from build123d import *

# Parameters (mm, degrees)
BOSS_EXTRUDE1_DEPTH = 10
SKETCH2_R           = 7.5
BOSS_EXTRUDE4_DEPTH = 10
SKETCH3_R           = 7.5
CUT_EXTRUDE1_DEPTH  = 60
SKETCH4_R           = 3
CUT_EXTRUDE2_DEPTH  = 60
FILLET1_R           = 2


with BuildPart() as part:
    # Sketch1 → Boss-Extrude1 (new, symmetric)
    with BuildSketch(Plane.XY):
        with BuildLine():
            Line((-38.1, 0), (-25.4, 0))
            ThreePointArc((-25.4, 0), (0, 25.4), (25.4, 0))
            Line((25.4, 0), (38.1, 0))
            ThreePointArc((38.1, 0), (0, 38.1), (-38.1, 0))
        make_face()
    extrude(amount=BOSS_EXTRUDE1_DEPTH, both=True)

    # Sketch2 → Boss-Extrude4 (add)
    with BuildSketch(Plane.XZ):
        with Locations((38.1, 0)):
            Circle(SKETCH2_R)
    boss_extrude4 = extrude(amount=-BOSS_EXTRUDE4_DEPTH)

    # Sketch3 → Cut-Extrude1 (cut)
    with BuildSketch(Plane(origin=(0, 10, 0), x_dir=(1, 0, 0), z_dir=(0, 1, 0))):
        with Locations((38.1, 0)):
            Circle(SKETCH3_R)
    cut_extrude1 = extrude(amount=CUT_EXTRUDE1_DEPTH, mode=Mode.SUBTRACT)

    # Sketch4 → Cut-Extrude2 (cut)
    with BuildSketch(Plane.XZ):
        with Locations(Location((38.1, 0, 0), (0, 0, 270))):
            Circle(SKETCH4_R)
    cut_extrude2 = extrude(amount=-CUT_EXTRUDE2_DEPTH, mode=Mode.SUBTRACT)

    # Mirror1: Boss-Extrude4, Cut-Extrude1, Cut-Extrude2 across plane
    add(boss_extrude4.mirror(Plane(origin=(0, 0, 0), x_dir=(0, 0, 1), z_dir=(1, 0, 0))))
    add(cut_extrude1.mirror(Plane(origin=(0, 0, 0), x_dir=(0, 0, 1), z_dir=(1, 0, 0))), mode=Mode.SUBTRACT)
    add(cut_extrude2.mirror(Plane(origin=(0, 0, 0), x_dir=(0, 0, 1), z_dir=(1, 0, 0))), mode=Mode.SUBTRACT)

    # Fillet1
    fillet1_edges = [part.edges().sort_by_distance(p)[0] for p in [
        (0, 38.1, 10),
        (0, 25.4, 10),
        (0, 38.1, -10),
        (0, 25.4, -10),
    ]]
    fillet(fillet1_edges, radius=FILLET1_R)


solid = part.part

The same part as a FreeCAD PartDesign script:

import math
import FreeCAD as App
import Part
import Sketcher


def edges_at(feature, points):
    """Names of the edges that pass closest to the given points."""
    edges = feature.Shape.Edges
    near = lambda p: min(range(len(edges)), key=lambda i: edges[i].distToShape(Part.Vertex(*p))[0])
    return sorted({f"Edge{near(p) + 1}" for p in points})

doc = App.newDocument("Part")
body = doc.addObject("PartDesign::Body", "Body")

# Sketch on XY plane
sketch1 = body.newObject("Sketcher::SketchObject", "Sketch")
sketch1.AttachmentSupport = (doc.getObject("XY_Plane"), [""])
sketch1.MapMode = "FlatFace"
sketch1.addGeometry([
    Part.LineSegment(App.Vector(-38, 0, 0), App.Vector(-25, 0, 0)),
    Part.ArcOfCircle(Part.Circle(App.Vector(0, 0, 0), App.Vector(0, 0, 1), 25), math.radians(0), math.radians(180)),
    Part.LineSegment(App.Vector(25, 0, 0), App.Vector(38, 0, 0)),
    Part.ArcOfCircle(Part.Circle(App.Vector(0, 0, 0), App.Vector(0, 0, 1), 38), math.radians(0), math.radians(180)),
], False)
sketch1.addConstraint([
    Sketcher.Constraint("Coincident", 0, 2, 1, 2),
    Sketcher.Constraint("Coincident", 1, 1, 2, 1),
    Sketcher.Constraint("Coincident", 2, 2, 3, 1),
    Sketcher.Constraint("Coincident", 3, 2, 0, 1),
    Sketcher.Constraint("Horizontal", 0),
    Sketcher.Constraint("Horizontal", 2),
    Sketcher.Constraint("Coincident", 1, 3, -1, 1),
    Sketcher.Constraint("Coincident", 3, 3, -1, 1),
    Sketcher.Constraint("PointOnObject", 0, 2, -1),
    Sketcher.Constraint("PointOnObject", 1, 1, -1),
    Sketcher.Constraint("Radius", 1, 25.4),
    Sketcher.Constraint("Radius", 3, 38.1),
])
pad1 = body.newObject("PartDesign::Pad", "Pad")
pad1.Profile = sketch1
pad1.Length = 20
pad1.Midplane = True

# Sketch on XZ plane
sketch2 = body.newObject("Sketcher::SketchObject", "Sketch001")
sketch2.AttachmentSupport = (doc.getObject("XZ_Plane"), [""])
sketch2.MapMode = "FlatFace"
sketch2.addGeometry(Part.Circle(App.Vector(38, 0, 0), App.Vector(0, 0, 1), 8), False)
sketch2.addConstraint([
    Sketcher.Constraint("PointOnObject", 0, 3, -1),
    Sketcher.Constraint("Diameter", 0, 15.0),
    Sketcher.Constraint("DistanceX", -1, 1, 0, 3, 38.1),
])
pad2 = body.newObject("PartDesign::Pad", "Pad001")
pad2.Profile = sketch2
pad2.Length = 10
pad2.Reversed = True

# Sketch on XZ plane
sketch3 = body.newObject("Sketcher::SketchObject", "Sketch002")
sketch3.AttachmentSupport = (doc.getObject("XZ_Plane"), [""])
sketch3.MapMode = "FlatFace"
sketch3.AttachmentOffset = App.Placement(App.Vector(0, 0, -10), App.Rotation())
sketch3.addGeometry(Part.Circle(App.Vector(38, 0, 0), App.Vector(0, 0, 1), 8), False)
sketch3.addConstraint([
    Sketcher.Constraint("PointOnObject", 0, 3, -1),
    Sketcher.Constraint("Diameter", 0, 15.0),
    Sketcher.Constraint("DistanceX", -1, 1, 0, 3, 38.1),
])
pocket1 = body.newObject("PartDesign::Pocket", "Pocket")
pocket1.Profile = sketch3
pocket1.Length = 60

# Sketch on XZ plane
sketch4 = body.newObject("Sketcher::SketchObject", "Sketch003")
sketch4.AttachmentSupport = (doc.getObject("XZ_Plane"), [""])
sketch4.MapMode = "FlatFace"
sketch4.addGeometry(Part.Circle(App.Vector(38.1, 0, 0), App.Vector(0, 0, 1), 3), False)
sketch4.addConstraint([
    Sketcher.Constraint("PointOnObject", 0, 3, -1),
    Sketcher.Constraint("Diameter", 0, 6.0),
    Sketcher.Constraint("DistanceX", -1, 1, 0, 3, 38.1),
])
pocket2 = body.newObject("PartDesign::Pocket", "Pocket001")
pocket2.Profile = sketch4
pocket2.Length = 60
doc.recompute()

mirrored = body.newObject("PartDesign::Mirrored", "Mirrored")
mirrored.Originals = [pad2, pocket1, pocket2]
mirrored.MirrorPlane = (doc.getObject("YZ_Plane"), [""])
body.Tip = mirrored
doc.recompute()

fillet = body.newObject("PartDesign::Fillet", "Fillet")
fillet.Base = (mirrored, edges_at(mirrored, [
    (0, 38.1, 10),
    (0, 25.4, 10),
    (0, 38.1, -10),
    (0, 25.4, -10),
]))
fillet.Radius = 2

doc.recompute()
